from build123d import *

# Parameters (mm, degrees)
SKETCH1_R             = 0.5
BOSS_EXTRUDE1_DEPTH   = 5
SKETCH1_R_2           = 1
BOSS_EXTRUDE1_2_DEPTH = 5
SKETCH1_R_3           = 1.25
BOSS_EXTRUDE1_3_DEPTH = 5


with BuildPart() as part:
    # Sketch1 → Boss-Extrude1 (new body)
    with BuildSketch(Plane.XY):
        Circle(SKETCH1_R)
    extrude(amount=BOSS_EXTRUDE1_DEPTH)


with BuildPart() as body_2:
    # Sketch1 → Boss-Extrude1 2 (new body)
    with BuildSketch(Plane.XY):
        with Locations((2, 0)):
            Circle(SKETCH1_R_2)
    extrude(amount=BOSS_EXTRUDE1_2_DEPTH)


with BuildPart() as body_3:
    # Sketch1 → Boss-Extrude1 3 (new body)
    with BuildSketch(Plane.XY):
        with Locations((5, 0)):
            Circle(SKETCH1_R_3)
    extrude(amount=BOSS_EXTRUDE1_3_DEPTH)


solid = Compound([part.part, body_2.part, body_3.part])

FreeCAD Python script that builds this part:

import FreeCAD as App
import Part
import Sketcher
from FreeCAD import Vector

doc = App.newDocument("Part")
body = doc.addObject("PartDesign::Body", "Body")

# Sketch on XY plane
sketch1 = body.newObject("Sketcher::SketchObject", "Sketch")
sketch1.AttachmentSupport = (doc.getObject("XY_Plane"), [""])
sketch1.MapMode = "FlatFace"
sketch1.addGeometry(Part.Circle(Vector(0, 0, 0), Vector(0, 0, 1), 0.5), False)
sketch1.addConstraint(Sketcher.Constraint("Coincident", 0, 3, -1, 1))
sketch1.addConstraint(Sketcher.Constraint("Diameter", 0, 1.0))
pad1 = body.newObject("PartDesign::Pad", "Pad")
pad1.Profile = sketch1
pad1.Length = 5
body2 = doc.addObject("PartDesign::Body", "Body001")

# Sketch on XY plane
sketch2 = body2.newObject("Sketcher::SketchObject", "Sketch001")
sketch2.AttachmentSupport = (doc.getObject("XY_Plane001"), [""])
sketch2.MapMode = "FlatFace"
sketch2.addGeometry(Part.Circle(Vector(2, 0, 0), Vector(0, 0, 1), 1), False)
sketch2.addConstraint(Sketcher.Constraint("PointOnObject", 0, 3, -1))
sketch2.addConstraint(Sketcher.Constraint("Diameter", 0, 2.0))
sketch2.addConstraint(Sketcher.Constraint("DistanceX", -1, 1, 0, 3, 2.0))
pad2 = body2.newObject("PartDesign::Pad", "Pad001")
pad2.Profile = sketch2
pad2.Length = 5
body3 = doc.addObject("PartDesign::Body", "Body002")

# Sketch on XY plane
sketch3 = body3.newObject("Sketcher::SketchObject", "Sketch002")
sketch3.AttachmentSupport = (doc.getObject("XY_Plane002"), [""])
sketch3.MapMode = "FlatFace"
sketch3.addGeometry(Part.Circle(Vector(5, 0, 0), Vector(0, 0, 1), 1.2), False)
sketch3.addConstraint(Sketcher.Constraint("PointOnObject", 0, 3, -1))
sketch3.addConstraint(Sketcher.Constraint("Diameter", 0, 2.5))
sketch3.addConstraint(Sketcher.Constraint("DistanceX", -1, 1, 0, 3, 5.0))
pad3 = body3.newObject("PartDesign::Pad", "Pad002")
pad3.Profile = sketch3
pad3.Length = 5

doc.recompute()
